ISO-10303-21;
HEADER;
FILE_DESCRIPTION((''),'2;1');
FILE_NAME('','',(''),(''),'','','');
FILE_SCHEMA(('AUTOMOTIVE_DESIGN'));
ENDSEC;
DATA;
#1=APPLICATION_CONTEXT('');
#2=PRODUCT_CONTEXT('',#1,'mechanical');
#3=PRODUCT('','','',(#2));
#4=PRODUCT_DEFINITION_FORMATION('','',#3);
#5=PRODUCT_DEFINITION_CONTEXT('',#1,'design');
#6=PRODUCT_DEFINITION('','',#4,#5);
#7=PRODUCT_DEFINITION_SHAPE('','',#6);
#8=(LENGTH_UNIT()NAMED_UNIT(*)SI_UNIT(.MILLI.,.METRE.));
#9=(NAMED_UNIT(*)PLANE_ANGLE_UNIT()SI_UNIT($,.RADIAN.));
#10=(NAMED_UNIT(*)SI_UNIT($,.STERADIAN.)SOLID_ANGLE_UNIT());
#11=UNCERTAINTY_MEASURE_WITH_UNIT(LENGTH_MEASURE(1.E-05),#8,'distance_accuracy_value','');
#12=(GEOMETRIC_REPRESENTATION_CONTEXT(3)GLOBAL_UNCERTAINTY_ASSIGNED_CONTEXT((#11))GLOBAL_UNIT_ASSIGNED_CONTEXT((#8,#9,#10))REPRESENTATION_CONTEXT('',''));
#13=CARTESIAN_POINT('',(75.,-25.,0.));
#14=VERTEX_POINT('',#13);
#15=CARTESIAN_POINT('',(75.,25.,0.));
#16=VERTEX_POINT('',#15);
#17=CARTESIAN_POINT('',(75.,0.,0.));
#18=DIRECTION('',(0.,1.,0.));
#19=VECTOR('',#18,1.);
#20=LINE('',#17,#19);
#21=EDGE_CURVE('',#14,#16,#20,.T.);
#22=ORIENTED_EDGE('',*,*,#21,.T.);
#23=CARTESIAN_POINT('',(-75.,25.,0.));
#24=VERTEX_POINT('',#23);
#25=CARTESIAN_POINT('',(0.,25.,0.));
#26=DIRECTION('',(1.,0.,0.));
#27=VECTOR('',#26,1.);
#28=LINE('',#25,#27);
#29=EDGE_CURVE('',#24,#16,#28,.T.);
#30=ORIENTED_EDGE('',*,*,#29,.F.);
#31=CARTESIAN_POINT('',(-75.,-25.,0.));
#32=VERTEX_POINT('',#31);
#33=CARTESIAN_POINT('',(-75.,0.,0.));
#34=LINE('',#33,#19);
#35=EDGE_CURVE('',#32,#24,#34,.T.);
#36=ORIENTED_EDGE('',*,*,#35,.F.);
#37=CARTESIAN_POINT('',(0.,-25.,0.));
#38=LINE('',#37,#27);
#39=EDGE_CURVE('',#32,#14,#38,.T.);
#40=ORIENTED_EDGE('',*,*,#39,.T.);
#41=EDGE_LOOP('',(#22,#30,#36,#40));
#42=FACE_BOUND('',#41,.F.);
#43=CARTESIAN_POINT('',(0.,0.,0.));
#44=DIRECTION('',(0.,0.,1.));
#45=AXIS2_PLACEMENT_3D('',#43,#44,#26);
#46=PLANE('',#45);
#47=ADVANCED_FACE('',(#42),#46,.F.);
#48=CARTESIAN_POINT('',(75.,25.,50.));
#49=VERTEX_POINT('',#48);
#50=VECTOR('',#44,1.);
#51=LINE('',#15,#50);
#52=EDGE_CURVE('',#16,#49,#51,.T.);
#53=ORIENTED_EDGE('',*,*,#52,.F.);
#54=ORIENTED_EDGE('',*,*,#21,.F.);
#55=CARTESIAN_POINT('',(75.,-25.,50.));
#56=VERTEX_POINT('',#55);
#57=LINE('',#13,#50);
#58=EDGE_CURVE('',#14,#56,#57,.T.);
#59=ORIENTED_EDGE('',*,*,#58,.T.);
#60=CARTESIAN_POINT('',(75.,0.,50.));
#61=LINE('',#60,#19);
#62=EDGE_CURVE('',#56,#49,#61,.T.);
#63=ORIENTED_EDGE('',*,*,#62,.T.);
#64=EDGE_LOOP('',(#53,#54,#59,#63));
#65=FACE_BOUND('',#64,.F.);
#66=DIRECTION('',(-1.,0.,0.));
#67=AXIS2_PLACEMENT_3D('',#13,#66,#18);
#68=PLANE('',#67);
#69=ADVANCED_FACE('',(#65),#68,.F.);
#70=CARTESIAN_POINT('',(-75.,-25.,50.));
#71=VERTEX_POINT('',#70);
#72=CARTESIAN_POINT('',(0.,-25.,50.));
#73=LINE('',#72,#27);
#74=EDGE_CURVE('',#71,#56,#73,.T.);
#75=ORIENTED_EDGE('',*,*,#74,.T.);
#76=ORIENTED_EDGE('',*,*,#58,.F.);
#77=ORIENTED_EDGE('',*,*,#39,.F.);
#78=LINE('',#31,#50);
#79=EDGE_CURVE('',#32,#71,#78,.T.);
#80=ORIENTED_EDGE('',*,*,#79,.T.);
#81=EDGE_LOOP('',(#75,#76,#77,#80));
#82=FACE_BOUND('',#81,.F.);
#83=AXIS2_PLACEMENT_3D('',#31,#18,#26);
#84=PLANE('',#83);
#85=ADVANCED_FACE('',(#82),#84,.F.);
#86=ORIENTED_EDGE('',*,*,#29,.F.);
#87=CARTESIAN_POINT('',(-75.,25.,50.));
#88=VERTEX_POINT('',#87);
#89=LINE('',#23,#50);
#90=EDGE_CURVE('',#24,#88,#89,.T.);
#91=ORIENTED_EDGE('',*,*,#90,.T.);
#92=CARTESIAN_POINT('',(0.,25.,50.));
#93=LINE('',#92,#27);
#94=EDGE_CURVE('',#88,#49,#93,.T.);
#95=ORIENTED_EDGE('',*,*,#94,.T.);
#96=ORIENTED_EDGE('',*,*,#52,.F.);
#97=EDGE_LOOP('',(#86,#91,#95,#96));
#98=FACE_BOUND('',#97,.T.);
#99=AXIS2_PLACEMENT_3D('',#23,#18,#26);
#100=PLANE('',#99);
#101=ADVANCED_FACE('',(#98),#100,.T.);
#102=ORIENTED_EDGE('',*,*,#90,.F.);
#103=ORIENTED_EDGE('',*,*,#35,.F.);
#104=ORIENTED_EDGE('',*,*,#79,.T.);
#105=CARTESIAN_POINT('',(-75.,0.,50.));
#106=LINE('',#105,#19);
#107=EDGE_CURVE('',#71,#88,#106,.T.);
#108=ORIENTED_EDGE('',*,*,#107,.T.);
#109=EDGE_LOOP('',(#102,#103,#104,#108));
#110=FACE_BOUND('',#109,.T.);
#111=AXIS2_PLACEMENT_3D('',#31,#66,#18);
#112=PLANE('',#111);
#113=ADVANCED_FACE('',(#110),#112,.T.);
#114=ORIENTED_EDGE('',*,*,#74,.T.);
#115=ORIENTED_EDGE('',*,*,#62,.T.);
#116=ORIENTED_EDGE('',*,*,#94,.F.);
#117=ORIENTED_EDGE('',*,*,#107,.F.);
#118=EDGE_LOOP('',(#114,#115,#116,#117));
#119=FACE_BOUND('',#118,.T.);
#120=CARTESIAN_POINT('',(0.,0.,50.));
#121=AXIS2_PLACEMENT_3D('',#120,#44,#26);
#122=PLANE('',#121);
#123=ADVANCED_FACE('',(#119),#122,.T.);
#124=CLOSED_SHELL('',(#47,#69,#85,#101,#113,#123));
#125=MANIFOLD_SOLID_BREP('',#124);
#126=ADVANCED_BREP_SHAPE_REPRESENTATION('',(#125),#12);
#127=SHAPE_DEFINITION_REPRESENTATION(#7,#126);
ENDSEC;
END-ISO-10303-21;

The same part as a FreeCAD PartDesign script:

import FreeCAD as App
import Part
import Sketcher
Q = App.Units.Quantity


def add_polygon(sketch, points):
    """Adds a closed chain of lines whose ends are joined by coincident constraints."""
    first, n = sketch.GeometryCount, len(points)
    for a, b in zip(points, points[1:] + points[:1]):
        sketch.addGeometry(Part.LineSegment(App.Vector(*a, 0), App.Vector(*b, 0)), False)
    for i in range(n):
        sketch.addConstraint(Sketcher.Constraint("Coincident", first + i, 2, first + (i + 1) % n, 1))

doc = App.newDocument("Part")
body = doc.addObject("PartDesign::Body", "Body")

# Sketch on XY plane
sketch1 = body.newObject("Sketcher::SketchObject", "Sketch")
sketch1.AttachmentSupport = (doc.getObject("XY_Plane"), [""])
sketch1.MapMode = "FlatFace"
add_polygon(sketch1, [(-75, 25), (-75, -25), (75, -25), (75, 25)])  # lines 0-3
sketch1.addConstraint([
    Sketcher.Constraint("Vertical", 0),
    Sketcher.Constraint("Horizontal", 1),
    Sketcher.Constraint("Vertical", 2),
    Sketcher.Constraint("Horizontal", 3),
    Sketcher.Constraint("Symmetric", 0, 2, 2, 2, -1, 1),
    Sketcher.Constraint("DistanceX", 1, 1, 1, 2, Q("150 mm")),
    Sketcher.Constraint("DistanceY", 0, 2, 0, 1, Q("50 mm")),
])
pad1 = body.newObject("PartDesign::Pad", "Pad")
pad1.Profile = sketch1
pad1.Length = 50

doc.recompute()
